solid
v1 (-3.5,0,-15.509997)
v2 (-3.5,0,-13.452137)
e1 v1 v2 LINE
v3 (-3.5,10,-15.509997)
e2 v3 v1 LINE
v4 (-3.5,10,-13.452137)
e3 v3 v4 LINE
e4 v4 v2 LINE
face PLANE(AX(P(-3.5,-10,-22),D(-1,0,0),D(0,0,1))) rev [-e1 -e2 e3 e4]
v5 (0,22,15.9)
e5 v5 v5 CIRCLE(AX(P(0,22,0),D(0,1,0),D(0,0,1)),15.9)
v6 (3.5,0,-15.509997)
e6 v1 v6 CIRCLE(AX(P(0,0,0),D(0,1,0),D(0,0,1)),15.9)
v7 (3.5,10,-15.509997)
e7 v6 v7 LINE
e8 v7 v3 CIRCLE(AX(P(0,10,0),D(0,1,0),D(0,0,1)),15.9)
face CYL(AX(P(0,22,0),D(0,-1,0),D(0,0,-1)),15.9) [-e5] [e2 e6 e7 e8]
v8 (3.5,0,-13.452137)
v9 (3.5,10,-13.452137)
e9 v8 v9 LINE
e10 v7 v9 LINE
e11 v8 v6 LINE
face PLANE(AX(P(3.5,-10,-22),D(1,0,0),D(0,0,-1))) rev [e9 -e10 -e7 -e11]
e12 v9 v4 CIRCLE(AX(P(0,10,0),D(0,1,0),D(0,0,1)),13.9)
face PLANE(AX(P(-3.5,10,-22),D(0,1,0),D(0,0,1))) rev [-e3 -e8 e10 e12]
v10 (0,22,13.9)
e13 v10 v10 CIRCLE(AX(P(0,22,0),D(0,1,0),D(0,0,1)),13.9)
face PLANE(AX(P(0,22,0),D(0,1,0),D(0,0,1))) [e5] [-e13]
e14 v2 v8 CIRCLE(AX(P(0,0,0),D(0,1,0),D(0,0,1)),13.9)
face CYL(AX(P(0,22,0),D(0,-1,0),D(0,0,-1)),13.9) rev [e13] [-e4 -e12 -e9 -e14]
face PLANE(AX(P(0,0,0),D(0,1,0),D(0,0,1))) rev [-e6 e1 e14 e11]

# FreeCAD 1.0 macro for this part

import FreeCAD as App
import Part
import Sketcher
Q = App.Units.Quantity

doc = App.newDocument("Part")
params = doc.addObject("Spreadsheet::Sheet", "Params")
for row, (alias, value) in enumerate([
    ("sketch1_diameter", "31.8 mm"),
    ("sketch1_diameter2", "27.8 mm"),
    ("pad1_length", "22 mm"),
    ("sketch2_width", "7 mm"),
    ("sketch2_height", "20 mm"),
    ("pocket1_length", "22 mm"),
], start=1):
    params.set(f"A{row}", alias)
    params.set(f"B{row}", "=" + value)
    params.setAlias(f"B{row}", alias)

body = doc.addObject("PartDesign::Body", "Body")

sketch1 = body.newObject("Sketcher::SketchObject", "Sketch")
sketch1.AttachmentSupport = (doc.getObject("XZ_Plane"), [""])
sketch1.MapMode = "FlatFace"
sketch1.addGeometry(Part.Circle(App.Vector(0, 0, 0), App.Vector(0, 0, 1), 15.9), False)
sketch1.addGeometry(Part.Circle(App.Vector(0, 0, 0), App.Vector(0, 0, 1), 13.9), False)
sketch1.addConstraint(Sketcher.Constraint("Coincident", 0, 3, -1, 1))
sketch1.addConstraint(Sketcher.Constraint("Coincident", 1, 3, -1, 1))
sketch1.addConstraint(Sketcher.Constraint("Diameter", 0, Q("31.8 mm")))
sketch1.addConstraint(Sketcher.Constraint("Diameter", 1, Q("27.8 mm")))
sketch1.setExpression("Constraints[2]", "Params.sketch1_diameter")
sketch1.setExpression("Constraints[3]", "Params.sketch1_diameter2")
pad1 = body.newObject("PartDesign::Pad", "Pad")
pad1.Profile = sketch1
pad1.setExpression("Length", "Params.pad1_length")
pad1.Reversed = True

sketch2 = body.newObject("Sketcher::SketchObject", "Sketch001")
sketch2.AttachmentSupport = (doc.getObject("XY_Plane"), [""])
sketch2.MapMode = "FlatFace"
sketch2.addGeometry(Part.LineSegment(App.Vector(-3.5, 10, 0), App.Vector(-3.5, -10, 0)), False)
sketch2.addGeometry(Part.LineSegment(App.Vector(-3.5, -10, 0), App.Vector(3.5, -10, 0)), False)
sketch2.addGeometry(Part.LineSegment(App.Vector(3.5, -10, 0), App.Vector(3.5, 10, 0)), False)
sketch2.addGeometry(Part.LineSegment(App.Vector(3.5, 10, 0), App.Vector(-3.5, 10, 0)), False)
sketch2.addConstraint(Sketcher.Constraint("Coincident", 0, 2, 1, 1))
sketch2.addConstraint(Sketcher.Constraint("Coincident", 1, 2, 2, 1))
sketch2.addConstraint(Sketcher.Constraint("Coincident", 2, 2, 3, 1))
sketch2.addConstraint(Sketcher.Constraint("Coincident", 3, 2, 0, 1))
sketch2.addConstraint(Sketcher.Constraint("Vertical", 0))
sketch2.addConstraint(Sketcher.Constraint("Horizontal", 1))
sketch2.addConstraint(Sketcher.Constraint("Vertical", 2))
sketch2.addConstraint(Sketcher.Constraint("Horizontal", 3))
sketch2.addConstraint(Sketcher.Constraint("Symmetric", 0, 2, 2, 2, -1, 1))
sketch2.addConstraint(Sketcher.Constraint("DistanceX", 1, 1, 1, 2, Q("7 mm")))
sketch2.addConstraint(Sketcher.Constraint("DistanceY", 0, 2, 0, 1, Q("20 mm")))
sketch2.setExpression("Constraints[9]", "Params.sketch2_width")
sketch2.setExpression("Constraints[10]", "Params.sketch2_height")
pocket1 = body.newObject("PartDesign::Pocket", "Pocket")
pocket1.Profile = sketch2
pocket1.setExpression("Length", "Params.pocket1_length")

doc.recompute()
